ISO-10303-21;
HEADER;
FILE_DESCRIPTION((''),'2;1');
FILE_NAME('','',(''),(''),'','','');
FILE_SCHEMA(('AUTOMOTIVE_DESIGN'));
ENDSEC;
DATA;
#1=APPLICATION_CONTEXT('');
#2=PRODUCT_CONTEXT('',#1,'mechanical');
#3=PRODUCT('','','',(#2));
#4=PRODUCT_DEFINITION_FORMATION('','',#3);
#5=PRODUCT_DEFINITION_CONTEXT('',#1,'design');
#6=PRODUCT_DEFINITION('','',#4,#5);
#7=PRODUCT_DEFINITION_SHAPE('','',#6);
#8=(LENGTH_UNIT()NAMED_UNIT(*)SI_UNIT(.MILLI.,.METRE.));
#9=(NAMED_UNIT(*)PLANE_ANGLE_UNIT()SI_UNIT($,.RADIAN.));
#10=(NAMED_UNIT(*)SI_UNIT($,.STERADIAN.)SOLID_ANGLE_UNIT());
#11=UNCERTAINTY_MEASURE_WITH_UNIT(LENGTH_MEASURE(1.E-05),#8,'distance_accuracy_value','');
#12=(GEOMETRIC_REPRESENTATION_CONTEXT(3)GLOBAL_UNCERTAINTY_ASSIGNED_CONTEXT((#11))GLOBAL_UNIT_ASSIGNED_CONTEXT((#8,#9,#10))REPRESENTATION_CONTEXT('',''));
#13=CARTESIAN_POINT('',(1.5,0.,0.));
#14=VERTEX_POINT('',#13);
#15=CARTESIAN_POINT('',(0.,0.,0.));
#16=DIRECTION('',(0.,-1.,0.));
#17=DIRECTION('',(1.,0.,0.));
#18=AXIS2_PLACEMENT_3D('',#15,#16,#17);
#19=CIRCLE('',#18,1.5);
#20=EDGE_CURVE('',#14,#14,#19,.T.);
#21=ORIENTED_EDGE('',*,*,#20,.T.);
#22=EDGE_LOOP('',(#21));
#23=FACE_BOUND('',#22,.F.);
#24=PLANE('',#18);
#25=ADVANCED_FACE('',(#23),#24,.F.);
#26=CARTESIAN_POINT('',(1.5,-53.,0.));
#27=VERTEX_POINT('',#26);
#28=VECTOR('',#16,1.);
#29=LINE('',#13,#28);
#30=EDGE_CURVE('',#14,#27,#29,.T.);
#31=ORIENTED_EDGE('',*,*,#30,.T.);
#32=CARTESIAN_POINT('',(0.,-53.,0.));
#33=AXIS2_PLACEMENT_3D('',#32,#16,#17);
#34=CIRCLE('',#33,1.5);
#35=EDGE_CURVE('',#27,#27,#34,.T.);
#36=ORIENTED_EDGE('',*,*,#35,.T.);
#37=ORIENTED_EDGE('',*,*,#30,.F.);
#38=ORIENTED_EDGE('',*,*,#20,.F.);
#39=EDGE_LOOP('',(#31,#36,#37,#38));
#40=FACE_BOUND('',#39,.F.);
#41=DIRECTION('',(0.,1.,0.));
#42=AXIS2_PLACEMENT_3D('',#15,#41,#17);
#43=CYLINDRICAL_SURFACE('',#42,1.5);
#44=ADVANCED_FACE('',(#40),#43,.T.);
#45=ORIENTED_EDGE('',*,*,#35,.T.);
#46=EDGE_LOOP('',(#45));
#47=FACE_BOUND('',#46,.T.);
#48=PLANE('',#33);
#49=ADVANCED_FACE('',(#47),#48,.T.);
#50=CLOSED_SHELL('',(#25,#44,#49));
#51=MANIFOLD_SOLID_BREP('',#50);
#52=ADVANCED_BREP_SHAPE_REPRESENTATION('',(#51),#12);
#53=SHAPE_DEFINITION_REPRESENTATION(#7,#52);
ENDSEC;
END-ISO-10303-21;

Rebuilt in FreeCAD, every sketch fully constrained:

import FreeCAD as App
import Part
import Sketcher

V = App.Vector

doc = App.newDocument("Part")
body = doc.addObject("PartDesign::Body", "Body")

sketch1 = body.newObject("Sketcher::SketchObject", "Sketch")
sketch1.AttachmentSupport = (doc.getObject("XY_Plane"), [""])
sketch1.MapMode = "FlatFace"
sketch1.addGeometry(Part.Circle(V(0, 0, 0), V(0, 0, 1), 1.5), False)
sketch1.addConstraint([
    Sketcher.Constraint("Coincident", 0, 3, -1, 1),
    Sketcher.Constraint("Diameter", 0, 3.0),
])
pad1 = body.newObject("PartDesign::Pad", "Pad")
pad1.Profile = sketch1
pad1.Length = 53
body2 = doc.addObject("PartDesign::Body", "Body001")
doc.recompute()

body.Placement = App.Placement(V(0, 0, 0), App.Rotation(V(1, 0, 0), 90))
boolean = body2.newObject("PartDesign::Boolean", "Boolean")
boolean.Type = "Fuse"
boolean.addObjects([body])

doc.recompute()
